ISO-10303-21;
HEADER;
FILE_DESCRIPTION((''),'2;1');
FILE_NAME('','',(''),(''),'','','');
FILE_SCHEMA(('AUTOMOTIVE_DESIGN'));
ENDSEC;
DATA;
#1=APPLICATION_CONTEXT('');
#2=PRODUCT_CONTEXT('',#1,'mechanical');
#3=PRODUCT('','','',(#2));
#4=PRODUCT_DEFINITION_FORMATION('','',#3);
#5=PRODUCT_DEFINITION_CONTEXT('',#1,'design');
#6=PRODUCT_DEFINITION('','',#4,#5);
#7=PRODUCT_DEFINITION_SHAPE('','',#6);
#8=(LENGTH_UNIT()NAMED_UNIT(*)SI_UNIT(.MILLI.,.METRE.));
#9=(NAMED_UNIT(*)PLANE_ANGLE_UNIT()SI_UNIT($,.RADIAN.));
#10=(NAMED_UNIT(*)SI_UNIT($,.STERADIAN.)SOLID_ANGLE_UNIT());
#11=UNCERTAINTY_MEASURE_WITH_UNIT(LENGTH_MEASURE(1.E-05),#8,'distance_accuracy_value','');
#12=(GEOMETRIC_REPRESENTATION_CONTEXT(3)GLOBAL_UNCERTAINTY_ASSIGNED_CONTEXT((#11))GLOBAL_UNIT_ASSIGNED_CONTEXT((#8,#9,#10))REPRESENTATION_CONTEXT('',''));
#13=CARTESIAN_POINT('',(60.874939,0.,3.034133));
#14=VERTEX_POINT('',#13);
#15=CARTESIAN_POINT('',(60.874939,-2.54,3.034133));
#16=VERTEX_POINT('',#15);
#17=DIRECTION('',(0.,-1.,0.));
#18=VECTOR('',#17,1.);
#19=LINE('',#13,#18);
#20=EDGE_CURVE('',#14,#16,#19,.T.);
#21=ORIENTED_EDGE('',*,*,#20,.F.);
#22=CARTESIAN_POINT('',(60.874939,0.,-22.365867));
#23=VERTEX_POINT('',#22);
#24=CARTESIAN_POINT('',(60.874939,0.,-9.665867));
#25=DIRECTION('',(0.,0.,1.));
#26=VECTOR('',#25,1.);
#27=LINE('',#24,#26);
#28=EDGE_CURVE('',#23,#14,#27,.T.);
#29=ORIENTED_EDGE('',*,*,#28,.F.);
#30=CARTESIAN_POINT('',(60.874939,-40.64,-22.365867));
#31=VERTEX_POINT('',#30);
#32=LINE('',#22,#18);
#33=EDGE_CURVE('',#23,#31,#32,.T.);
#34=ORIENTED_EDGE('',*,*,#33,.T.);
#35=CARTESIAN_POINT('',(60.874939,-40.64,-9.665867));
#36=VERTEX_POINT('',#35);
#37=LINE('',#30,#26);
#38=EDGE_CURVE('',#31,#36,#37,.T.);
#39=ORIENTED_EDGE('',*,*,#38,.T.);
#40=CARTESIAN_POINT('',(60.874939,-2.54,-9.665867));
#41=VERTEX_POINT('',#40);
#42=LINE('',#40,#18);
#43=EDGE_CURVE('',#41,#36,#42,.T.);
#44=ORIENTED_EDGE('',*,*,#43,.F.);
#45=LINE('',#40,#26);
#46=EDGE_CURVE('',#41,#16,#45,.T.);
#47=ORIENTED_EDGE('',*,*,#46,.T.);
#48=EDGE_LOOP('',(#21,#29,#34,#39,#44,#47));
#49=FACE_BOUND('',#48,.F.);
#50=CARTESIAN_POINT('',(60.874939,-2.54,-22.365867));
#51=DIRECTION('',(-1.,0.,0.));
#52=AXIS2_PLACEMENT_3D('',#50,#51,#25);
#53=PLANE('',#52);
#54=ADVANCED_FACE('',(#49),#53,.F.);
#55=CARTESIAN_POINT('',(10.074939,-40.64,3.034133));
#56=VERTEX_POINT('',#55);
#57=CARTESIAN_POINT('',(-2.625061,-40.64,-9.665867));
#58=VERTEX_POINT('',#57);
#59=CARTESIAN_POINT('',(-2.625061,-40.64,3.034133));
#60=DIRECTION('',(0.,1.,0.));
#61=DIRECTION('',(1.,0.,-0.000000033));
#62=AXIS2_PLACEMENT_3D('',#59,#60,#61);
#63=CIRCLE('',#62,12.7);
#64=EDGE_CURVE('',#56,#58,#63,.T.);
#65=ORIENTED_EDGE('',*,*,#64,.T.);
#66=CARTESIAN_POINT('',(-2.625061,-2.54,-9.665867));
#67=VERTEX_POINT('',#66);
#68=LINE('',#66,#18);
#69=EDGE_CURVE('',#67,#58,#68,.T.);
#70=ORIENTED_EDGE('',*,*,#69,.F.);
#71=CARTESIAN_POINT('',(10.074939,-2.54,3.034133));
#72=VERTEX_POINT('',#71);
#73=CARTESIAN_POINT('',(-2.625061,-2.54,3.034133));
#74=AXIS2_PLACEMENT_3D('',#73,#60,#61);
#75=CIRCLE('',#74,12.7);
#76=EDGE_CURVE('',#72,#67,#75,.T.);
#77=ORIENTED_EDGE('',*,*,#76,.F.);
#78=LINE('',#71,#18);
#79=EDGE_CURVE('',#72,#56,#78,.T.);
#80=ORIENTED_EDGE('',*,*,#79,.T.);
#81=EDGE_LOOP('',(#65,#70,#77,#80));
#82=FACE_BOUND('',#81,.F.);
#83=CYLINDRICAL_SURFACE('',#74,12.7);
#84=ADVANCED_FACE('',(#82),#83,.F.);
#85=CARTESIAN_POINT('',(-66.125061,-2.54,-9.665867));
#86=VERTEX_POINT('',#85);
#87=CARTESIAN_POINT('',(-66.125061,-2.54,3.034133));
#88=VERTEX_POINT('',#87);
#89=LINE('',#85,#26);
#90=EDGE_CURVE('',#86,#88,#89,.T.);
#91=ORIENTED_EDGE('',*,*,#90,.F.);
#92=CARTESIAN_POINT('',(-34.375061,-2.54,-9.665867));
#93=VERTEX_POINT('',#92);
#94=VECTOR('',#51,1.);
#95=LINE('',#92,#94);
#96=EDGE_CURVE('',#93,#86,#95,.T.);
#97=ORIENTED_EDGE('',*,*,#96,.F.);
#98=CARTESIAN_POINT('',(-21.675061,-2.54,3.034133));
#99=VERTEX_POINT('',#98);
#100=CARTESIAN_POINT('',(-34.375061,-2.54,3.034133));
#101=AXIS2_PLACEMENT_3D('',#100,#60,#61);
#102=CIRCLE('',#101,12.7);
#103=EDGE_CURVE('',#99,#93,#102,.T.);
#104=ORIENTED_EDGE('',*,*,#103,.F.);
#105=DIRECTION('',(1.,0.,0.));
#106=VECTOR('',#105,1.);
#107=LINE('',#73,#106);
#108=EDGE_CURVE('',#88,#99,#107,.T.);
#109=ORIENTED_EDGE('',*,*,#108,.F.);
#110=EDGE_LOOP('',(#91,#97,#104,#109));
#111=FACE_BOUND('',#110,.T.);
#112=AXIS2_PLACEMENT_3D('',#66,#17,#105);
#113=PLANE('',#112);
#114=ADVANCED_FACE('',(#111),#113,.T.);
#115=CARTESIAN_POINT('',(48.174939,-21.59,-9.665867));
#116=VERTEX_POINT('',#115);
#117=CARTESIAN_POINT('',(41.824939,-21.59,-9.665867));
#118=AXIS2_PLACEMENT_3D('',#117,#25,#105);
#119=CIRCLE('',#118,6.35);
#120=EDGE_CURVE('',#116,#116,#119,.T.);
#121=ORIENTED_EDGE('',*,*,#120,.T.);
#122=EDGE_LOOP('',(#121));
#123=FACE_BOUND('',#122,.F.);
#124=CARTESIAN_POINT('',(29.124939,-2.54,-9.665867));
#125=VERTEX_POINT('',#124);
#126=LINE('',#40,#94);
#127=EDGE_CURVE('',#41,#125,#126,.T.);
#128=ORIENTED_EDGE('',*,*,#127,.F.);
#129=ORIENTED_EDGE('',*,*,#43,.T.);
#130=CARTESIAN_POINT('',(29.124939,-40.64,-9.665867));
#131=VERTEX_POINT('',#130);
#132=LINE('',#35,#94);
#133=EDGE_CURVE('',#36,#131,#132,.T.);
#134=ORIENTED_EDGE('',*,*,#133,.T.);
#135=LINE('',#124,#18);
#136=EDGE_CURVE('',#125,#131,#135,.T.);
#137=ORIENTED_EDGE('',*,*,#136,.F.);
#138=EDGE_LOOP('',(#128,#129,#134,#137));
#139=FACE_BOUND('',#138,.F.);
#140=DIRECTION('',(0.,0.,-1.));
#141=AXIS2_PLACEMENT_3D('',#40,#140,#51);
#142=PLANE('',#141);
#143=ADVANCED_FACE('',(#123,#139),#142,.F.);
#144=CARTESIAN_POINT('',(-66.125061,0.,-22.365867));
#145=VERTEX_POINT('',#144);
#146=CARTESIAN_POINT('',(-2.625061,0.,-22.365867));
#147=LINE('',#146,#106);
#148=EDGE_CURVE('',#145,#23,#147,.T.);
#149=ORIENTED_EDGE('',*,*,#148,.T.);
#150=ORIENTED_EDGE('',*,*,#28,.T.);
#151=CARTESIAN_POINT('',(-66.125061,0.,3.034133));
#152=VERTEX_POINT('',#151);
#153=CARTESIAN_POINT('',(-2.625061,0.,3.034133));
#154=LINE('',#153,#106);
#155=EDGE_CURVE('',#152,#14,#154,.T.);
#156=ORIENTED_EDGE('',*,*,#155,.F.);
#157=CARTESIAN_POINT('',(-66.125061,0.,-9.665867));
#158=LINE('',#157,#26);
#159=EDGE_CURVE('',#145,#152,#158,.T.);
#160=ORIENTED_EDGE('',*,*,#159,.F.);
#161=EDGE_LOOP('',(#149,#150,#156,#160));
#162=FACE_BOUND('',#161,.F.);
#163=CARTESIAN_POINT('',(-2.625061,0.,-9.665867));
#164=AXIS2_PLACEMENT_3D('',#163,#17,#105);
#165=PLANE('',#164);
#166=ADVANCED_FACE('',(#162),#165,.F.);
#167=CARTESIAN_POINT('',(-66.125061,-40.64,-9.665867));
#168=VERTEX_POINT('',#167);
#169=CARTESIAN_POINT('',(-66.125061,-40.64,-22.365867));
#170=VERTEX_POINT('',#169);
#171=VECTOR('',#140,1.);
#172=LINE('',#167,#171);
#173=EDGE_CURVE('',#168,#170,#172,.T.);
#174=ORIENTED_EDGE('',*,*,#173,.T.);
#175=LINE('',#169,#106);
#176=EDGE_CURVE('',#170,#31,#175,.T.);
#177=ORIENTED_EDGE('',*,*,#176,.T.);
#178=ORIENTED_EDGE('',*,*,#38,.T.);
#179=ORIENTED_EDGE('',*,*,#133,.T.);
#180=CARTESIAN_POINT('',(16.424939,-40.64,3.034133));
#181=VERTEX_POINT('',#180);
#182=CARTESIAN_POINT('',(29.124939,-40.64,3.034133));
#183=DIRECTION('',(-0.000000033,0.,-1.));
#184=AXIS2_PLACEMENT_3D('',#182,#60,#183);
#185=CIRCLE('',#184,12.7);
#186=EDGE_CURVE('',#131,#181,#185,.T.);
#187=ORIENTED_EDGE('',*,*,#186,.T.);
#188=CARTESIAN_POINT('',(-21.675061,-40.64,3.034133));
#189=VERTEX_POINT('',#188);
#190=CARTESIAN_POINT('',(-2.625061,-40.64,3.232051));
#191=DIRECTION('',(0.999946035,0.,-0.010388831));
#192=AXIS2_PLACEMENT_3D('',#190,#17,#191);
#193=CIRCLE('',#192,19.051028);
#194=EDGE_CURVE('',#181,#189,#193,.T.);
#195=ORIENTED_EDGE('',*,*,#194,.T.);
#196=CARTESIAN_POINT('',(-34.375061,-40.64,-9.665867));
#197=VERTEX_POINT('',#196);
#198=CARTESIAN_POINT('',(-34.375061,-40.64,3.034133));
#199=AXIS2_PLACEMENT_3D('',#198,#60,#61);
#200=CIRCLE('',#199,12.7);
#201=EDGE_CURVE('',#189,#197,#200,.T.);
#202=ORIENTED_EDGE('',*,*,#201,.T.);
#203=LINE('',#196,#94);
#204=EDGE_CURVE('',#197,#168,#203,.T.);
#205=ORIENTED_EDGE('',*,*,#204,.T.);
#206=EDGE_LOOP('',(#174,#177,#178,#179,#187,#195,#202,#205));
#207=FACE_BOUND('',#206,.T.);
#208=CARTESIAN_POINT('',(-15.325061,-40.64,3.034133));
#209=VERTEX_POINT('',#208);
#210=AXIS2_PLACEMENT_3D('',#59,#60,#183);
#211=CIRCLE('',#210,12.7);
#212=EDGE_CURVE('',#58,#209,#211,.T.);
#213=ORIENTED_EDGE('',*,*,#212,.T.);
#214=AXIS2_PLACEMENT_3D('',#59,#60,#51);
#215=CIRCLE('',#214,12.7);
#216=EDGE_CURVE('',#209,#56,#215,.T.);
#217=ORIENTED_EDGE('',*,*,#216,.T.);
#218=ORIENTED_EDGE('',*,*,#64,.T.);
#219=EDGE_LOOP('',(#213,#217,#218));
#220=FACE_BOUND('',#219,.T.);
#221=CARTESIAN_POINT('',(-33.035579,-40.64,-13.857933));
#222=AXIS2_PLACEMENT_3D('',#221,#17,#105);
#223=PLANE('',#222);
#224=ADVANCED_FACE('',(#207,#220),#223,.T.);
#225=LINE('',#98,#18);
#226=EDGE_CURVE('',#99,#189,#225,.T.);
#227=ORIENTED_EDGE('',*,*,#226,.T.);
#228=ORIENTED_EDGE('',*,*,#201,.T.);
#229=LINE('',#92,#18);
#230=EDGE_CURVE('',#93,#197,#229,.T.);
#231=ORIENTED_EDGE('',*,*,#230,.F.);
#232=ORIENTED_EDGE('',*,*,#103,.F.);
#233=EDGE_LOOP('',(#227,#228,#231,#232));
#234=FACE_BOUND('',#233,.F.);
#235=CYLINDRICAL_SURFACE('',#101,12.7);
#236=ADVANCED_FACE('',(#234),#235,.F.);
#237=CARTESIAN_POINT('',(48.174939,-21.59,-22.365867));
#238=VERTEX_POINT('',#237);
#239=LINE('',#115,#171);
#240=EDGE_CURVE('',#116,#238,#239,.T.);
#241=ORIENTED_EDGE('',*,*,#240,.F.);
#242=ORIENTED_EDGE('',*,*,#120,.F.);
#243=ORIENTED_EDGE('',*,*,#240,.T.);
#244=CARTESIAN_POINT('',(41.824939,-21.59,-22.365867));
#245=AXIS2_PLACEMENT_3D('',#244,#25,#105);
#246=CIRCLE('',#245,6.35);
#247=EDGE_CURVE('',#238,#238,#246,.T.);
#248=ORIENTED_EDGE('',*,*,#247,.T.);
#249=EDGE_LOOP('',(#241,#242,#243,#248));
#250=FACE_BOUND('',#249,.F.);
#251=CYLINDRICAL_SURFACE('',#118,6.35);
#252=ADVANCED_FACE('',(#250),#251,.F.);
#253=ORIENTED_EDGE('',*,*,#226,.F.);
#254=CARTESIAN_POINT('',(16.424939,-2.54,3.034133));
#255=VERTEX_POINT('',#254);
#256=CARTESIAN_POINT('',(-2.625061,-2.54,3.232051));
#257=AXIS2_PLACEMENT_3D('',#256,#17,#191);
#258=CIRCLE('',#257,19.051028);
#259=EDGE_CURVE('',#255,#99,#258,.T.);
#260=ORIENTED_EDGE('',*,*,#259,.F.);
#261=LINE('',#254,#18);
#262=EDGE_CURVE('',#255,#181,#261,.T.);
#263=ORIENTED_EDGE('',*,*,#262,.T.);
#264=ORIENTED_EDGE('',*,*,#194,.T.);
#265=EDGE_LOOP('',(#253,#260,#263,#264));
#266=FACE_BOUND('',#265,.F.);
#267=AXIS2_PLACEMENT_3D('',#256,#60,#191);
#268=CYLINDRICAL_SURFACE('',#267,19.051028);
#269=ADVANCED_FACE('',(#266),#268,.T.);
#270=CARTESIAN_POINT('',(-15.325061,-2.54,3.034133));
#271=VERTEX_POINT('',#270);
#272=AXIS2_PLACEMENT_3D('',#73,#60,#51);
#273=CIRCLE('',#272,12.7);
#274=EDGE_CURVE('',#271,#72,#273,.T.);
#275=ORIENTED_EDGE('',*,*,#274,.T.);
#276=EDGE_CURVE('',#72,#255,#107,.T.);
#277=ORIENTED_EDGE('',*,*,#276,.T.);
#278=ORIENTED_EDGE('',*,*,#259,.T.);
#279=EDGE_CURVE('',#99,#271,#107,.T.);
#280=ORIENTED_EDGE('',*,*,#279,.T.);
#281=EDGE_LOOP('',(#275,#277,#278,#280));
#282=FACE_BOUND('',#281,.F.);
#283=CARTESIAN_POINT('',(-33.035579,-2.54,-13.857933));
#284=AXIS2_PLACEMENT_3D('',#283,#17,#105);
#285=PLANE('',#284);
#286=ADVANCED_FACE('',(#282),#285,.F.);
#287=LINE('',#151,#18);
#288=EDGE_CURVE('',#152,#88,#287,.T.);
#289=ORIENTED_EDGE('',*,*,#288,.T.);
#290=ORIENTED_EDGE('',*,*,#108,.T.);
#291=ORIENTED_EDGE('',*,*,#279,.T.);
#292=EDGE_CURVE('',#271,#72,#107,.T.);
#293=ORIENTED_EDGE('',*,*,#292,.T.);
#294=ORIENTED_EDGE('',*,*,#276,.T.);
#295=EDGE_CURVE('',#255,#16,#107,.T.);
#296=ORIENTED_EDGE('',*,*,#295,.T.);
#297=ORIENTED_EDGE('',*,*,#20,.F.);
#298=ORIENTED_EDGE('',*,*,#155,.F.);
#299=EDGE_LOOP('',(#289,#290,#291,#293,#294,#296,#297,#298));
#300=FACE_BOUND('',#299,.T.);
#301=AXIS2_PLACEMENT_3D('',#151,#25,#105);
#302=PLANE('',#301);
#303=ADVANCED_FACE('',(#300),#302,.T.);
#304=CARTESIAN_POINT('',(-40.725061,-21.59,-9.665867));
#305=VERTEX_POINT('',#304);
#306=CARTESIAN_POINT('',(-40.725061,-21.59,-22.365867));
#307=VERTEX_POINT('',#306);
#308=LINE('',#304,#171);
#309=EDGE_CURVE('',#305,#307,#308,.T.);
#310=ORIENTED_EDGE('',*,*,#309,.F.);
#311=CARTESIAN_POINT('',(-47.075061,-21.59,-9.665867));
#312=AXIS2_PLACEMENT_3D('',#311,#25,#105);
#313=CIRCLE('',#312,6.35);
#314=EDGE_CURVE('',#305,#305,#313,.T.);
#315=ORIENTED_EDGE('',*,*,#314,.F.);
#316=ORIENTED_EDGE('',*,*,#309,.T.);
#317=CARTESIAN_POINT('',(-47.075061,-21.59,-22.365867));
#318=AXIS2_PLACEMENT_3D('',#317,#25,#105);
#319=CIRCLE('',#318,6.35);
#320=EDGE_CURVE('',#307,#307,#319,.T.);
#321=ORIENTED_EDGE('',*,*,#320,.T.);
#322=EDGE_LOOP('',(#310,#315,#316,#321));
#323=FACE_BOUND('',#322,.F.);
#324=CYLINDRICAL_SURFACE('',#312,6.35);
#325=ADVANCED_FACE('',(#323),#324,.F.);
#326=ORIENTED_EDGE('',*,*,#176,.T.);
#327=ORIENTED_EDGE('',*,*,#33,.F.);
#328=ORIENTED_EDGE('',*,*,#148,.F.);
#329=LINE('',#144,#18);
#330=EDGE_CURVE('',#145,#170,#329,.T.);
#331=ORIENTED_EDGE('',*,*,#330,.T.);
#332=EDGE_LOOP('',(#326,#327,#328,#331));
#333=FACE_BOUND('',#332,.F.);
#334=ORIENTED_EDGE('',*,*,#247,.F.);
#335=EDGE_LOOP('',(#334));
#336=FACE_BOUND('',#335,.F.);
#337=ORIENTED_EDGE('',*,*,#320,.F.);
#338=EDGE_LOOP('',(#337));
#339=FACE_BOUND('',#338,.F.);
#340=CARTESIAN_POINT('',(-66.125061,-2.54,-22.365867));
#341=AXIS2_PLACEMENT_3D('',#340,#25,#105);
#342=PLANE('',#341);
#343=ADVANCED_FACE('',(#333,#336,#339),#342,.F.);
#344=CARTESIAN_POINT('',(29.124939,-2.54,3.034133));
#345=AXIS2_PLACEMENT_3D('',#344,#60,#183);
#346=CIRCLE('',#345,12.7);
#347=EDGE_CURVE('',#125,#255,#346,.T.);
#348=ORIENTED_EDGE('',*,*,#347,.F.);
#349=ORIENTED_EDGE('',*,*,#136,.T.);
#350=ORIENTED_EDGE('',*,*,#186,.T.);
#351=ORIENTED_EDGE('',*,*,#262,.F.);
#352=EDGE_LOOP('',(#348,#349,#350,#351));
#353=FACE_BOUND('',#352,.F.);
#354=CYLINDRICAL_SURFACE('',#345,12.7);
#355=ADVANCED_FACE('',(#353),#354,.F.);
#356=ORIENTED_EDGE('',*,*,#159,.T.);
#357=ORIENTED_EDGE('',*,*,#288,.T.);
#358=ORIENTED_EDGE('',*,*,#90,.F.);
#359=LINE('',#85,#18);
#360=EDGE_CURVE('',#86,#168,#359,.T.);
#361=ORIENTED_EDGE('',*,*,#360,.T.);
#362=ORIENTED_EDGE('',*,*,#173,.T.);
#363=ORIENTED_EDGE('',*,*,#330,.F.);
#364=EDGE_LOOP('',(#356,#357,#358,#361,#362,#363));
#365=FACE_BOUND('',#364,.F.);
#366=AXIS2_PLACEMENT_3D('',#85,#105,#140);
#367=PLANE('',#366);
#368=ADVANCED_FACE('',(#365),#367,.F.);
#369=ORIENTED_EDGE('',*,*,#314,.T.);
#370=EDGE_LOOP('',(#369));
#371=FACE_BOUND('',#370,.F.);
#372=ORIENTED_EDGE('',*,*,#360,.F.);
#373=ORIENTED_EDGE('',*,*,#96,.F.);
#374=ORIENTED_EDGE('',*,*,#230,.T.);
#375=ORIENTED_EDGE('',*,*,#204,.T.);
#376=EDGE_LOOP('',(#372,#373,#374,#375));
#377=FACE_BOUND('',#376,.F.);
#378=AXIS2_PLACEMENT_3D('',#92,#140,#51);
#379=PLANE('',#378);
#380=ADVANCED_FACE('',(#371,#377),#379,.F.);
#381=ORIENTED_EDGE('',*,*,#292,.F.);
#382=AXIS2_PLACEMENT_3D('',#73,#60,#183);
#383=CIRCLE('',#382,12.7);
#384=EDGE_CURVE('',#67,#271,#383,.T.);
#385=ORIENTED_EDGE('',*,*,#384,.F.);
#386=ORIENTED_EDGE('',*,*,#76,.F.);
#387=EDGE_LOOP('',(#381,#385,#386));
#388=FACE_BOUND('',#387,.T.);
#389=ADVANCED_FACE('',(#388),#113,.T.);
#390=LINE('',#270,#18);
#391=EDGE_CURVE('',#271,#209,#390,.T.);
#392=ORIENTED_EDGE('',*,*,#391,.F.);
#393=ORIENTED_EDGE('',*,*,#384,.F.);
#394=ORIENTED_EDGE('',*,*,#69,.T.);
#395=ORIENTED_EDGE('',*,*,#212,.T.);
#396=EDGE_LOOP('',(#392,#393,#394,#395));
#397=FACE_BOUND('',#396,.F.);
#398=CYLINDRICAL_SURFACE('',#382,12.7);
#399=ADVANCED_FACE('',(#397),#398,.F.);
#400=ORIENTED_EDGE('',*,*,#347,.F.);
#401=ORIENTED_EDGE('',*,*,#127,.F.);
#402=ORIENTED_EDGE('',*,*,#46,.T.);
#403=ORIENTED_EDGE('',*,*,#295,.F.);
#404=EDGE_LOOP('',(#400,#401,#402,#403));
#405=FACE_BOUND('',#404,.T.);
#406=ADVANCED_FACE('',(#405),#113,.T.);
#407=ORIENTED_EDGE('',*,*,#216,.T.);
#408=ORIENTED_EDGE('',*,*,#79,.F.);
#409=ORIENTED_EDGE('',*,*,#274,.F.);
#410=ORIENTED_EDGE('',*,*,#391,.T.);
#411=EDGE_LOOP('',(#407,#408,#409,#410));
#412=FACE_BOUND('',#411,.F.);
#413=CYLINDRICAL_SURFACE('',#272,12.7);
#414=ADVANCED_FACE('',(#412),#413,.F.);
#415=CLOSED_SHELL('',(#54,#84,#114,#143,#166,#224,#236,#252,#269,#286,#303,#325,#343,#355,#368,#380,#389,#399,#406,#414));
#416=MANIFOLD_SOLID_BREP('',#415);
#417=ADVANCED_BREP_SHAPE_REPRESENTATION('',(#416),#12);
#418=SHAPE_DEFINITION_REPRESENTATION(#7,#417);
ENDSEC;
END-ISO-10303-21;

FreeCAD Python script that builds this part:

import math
import FreeCAD as App
import Part
import Sketcher
from FreeCAD import Vector
Q = App.Units.Quantity


def add_polygon(sketch, points):
    """Adds a closed chain of lines whose ends are joined by coincident constraints."""
    first, n = sketch.GeometryCount, len(points)
    for a, b in zip(points, points[1:] + points[:1]):
        sketch.addGeometry(Part.LineSegment(App.Vector(*a, 0), App.Vector(*b, 0)), False)
    for i in range(n):
        sketch.addConstraint(Sketcher.Constraint("Coincident", first + i, 2, first + (i + 1) % n, 1))

doc = App.newDocument("Part")
params = doc.addObject("Spreadsheet::Sheet", "Params")
for row, (alias, value) in enumerate([
    ("sketch1_width", "5 in"),
    ("sketch1_height", "1 in"),
    ("pad1_length", "0.1 in"),
    ("sketch2_radius", "0.5 in"),
    ("sketch2_width", "5 in"),
    ("sketch2_height", "0.5 in"),
    ("sketch2_width2", "1.25 in"),
    ("pad2_length", "1.5 in"),
    ("sketch3_diameter", "0.5 in"),
    ("pocket1_length", "1 in"),
], start=1):
    params.set(f"A{row}", alias)
    params.set(f"B{row}", "=" + value)
    params.setAlias(f"B{row}", alias)

body = doc.addObject("PartDesign::Body", "Body")

sketch1 = doc.addObject("Sketcher::SketchObject", "Sketch")
body.addObject(sketch1)
sketch1.AttachmentSupport = (doc.XZ_Plane, [""])
sketch1.MapMode = "FlatFace"
add_polygon(sketch1, [(-66, 3), (-66, -22), (61, -22), (61, 3)])
sketch1.addConstraint([
    Sketcher.Constraint("Vertical", 0),
    Sketcher.Constraint("Horizontal", 1),
    Sketcher.Constraint("Vertical", 2),
    Sketcher.Constraint("Horizontal", 3),
    Sketcher.Constraint("DistanceX", 1, 1, 1, 2, Q("5 in")),
    Sketcher.Constraint("DistanceY", 0, 2, 0, 1, Q("1 in")),
    Sketcher.Constraint("DistanceX", 0, 2, -1, 1, Q("66.125061 mm")),
    Sketcher.Constraint("DistanceY", 0, 2, -1, 1, Q("22.365867 mm")),
])
sketch1.setExpression("Constraints[8]", "Params.sketch1_width")
sketch1.setExpression("Constraints[9]", "Params.sketch1_height")
pad1 = doc.addObject("PartDesign::Pad", "Pad")
body.addObject(pad1)
pad1.Profile = sketch1
pad1.setExpression("Length", "Params.pad1_length")

sketch2 = doc.addObject("Sketcher::SketchObject", "Sketch001")
body.addObject(sketch2)
sketch2.AttachmentSupport = (doc.XZ_Plane, [""])
sketch2.MapMode = "FlatFace"
sketch2.AttachmentOffset = App.Placement(Vector(0, 0, 0.1 * 25.4), App.Rotation())
sketch2.addGeometry([
    Part.LineSegment(Vector(-66, -10, 0), Vector(-66, -22, 0)),
    Part.LineSegment(Vector(-66, -22, 0), Vector(61, -22, 0)),
    Part.LineSegment(Vector(61, -22, 0), Vector(61, -10, 0)),
    Part.LineSegment(Vector(61, -10, 0), Vector(29, -10, 0)),
    Part.ArcOfCircle(Part.Circle(Vector(29, 3, 0), Vector(0, 0, 1), 13), math.radians(-180), math.radians(-90)),
    Part.ArcOfCircle(Part.Circle(Vector(-3, 3, 0), Vector(0, 0, 1), 19), math.radians(-1), math.radians(181)),
    Part.ArcOfCircle(Part.Circle(Vector(-34, 3, 0), Vector(0, 0, 1), 13), math.radians(-90), math.radians(0)),
    Part.LineSegment(Vector(-34, -10, 0), Vector(-66, -10, 0)),
    Part.ArcOfCircle(Part.Circle(Vector(-3, 3, 0), Vector(0, 0, 1), 13), math.radians(-180), math.radians(-90)),
    Part.ArcOfCircle(Part.Circle(Vector(-3, 3, 0), Vector(0, 0, 1), 13), math.radians(0), math.radians(180)),
    Part.ArcOfCircle(Part.Circle(Vector(-3, 3, 0), Vector(0, 0, 1), 13), math.radians(-90), math.radians(0)),
], False)
sketch2.addConstraint([
    Sketcher.Constraint("Coincident", 0, 2, 1, 1),
    Sketcher.Constraint("Coincident", 1, 2, 2, 1),
    Sketcher.Constraint("Coincident", 2, 2, 3, 1),
    Sketcher.Constraint("Tangent", 3, 2, 4, 2),
    Sketcher.Constraint("Coincident", 4, 1, 5, 1),
    Sketcher.Constraint("Coincident", 5, 2, 6, 2),
    Sketcher.Constraint("Tangent", 6, 1, 7, 1),
    Sketcher.Constraint("Coincident", 7, 2, 0, 1),
    Sketcher.Constraint("Tangent", 8, 1, 9, 2),
    Sketcher.Constraint("Tangent", 9, 1, 10, 2),
    Sketcher.Constraint("Tangent", 10, 1, 8, 2),
    Sketcher.Constraint("Vertical", 0),
    Sketcher.Constraint("Horizontal", 1),
    Sketcher.Constraint("Vertical", 2),
    Sketcher.Constraint("Horizontal", 3),
    Sketcher.Constraint("Horizontal", 7),
    Sketcher.Constraint("Equal", 4, 6),
    Sketcher.Constraint("Equal", 6, 8),
    Sketcher.Constraint("Horizontal", 4, 3, 6, 3),
    Sketcher.Constraint("Horizontal", 6, 3, 8, 3),
    Sketcher.Constraint("Horizontal", 10, 3, 4, 1),
    Sketcher.Constraint("Horizontal", 4, 1, 5, 2),
    Sketcher.Constraint("Horizontal", 5, 2, 8, 1),
    Sketcher.Constraint("Horizontal", 8, 1, 9, 1),
    Sketcher.Constraint("Vertical", 5, 3, 8, 3),
    Sketcher.Constraint("Vertical", 9, 3, 10, 1),
    Sketcher.Constraint("Equal", 3, 7),
    Sketcher.Constraint("Radius", 4, Q("0.5 in")),
    Sketcher.Constraint("DistanceX", 1, 1, 1, 2, Q("5 in")),
    Sketcher.Constraint("DistanceY", 0, 2, 0, 1, Q("0.5 in")),
    Sketcher.Constraint("DistanceX", 3, 2, 3, 1, Q("1.25 in")),
    Sketcher.Constraint("Radius", 5, Q("19.051028 mm")),
    Sketcher.Constraint("DistanceX", -1, 1, 4, 3, Q("29.124939 mm")),
    Sketcher.Constraint("DistanceY", -1, 1, 5, 3, Q("3.232051 mm")),
])
sketch2.setExpression("Constraints[27]", "Params.sketch2_radius")
sketch2.setExpression("Constraints[28]", "Params.sketch2_width")
sketch2.setExpression("Constraints[29]", "Params.sketch2_height")
sketch2.setExpression("Constraints[30]", "Params.sketch2_width2")
pad2 = doc.addObject("PartDesign::Pad", "Pad001")
body.addObject(pad2)
pad2.Profile = sketch2
pad2.setExpression("Length", "Params.pad2_length")

sketch3 = doc.addObject("Sketcher::SketchObject", "Sketch002")
body.addObject(sketch3)
sketch3.AttachmentSupport = (doc.XY_Plane, [""])
sketch3.MapMode = "FlatFace"
sketch3.AttachmentOffset = App.Placement(Vector(0, 0, -9.665867), App.Rotation())
sketch3.addGeometry([
    Part.Circle(Vector(42, -22, 0), Vector(0, 0, 1), 6),
    Part.Circle(Vector(-47, -22, 0), Vector(0, 0, 1), 6),
], False)
sketch3.addConstraint([
    Sketcher.Constraint("Equal", 0, 1),
    Sketcher.Constraint("Horizontal", 0, 3, 1, 3),
    Sketcher.Constraint("Diameter", 0, Q("0.5 in")),
    Sketcher.Constraint("DistanceX", 1, 3, 0, 3, Q("3.5 in")),
    Sketcher.Constraint("DistanceY", 0, 3, -1, 1, Q("0.85 in")),
    Sketcher.Constraint("DistanceX", -1, 1, 0, 3, Q("41.824939 mm")),
])
sketch3.setExpression("Constraints[2]", "Params.sketch3_diameter")
pocket1 = doc.addObject("PartDesign::Pocket", "Pocket")
body.addObject(pocket1)
pocket1.Profile = sketch3
pocket1.setExpression("Length", "Params.pocket1_length")

doc.recompute()
